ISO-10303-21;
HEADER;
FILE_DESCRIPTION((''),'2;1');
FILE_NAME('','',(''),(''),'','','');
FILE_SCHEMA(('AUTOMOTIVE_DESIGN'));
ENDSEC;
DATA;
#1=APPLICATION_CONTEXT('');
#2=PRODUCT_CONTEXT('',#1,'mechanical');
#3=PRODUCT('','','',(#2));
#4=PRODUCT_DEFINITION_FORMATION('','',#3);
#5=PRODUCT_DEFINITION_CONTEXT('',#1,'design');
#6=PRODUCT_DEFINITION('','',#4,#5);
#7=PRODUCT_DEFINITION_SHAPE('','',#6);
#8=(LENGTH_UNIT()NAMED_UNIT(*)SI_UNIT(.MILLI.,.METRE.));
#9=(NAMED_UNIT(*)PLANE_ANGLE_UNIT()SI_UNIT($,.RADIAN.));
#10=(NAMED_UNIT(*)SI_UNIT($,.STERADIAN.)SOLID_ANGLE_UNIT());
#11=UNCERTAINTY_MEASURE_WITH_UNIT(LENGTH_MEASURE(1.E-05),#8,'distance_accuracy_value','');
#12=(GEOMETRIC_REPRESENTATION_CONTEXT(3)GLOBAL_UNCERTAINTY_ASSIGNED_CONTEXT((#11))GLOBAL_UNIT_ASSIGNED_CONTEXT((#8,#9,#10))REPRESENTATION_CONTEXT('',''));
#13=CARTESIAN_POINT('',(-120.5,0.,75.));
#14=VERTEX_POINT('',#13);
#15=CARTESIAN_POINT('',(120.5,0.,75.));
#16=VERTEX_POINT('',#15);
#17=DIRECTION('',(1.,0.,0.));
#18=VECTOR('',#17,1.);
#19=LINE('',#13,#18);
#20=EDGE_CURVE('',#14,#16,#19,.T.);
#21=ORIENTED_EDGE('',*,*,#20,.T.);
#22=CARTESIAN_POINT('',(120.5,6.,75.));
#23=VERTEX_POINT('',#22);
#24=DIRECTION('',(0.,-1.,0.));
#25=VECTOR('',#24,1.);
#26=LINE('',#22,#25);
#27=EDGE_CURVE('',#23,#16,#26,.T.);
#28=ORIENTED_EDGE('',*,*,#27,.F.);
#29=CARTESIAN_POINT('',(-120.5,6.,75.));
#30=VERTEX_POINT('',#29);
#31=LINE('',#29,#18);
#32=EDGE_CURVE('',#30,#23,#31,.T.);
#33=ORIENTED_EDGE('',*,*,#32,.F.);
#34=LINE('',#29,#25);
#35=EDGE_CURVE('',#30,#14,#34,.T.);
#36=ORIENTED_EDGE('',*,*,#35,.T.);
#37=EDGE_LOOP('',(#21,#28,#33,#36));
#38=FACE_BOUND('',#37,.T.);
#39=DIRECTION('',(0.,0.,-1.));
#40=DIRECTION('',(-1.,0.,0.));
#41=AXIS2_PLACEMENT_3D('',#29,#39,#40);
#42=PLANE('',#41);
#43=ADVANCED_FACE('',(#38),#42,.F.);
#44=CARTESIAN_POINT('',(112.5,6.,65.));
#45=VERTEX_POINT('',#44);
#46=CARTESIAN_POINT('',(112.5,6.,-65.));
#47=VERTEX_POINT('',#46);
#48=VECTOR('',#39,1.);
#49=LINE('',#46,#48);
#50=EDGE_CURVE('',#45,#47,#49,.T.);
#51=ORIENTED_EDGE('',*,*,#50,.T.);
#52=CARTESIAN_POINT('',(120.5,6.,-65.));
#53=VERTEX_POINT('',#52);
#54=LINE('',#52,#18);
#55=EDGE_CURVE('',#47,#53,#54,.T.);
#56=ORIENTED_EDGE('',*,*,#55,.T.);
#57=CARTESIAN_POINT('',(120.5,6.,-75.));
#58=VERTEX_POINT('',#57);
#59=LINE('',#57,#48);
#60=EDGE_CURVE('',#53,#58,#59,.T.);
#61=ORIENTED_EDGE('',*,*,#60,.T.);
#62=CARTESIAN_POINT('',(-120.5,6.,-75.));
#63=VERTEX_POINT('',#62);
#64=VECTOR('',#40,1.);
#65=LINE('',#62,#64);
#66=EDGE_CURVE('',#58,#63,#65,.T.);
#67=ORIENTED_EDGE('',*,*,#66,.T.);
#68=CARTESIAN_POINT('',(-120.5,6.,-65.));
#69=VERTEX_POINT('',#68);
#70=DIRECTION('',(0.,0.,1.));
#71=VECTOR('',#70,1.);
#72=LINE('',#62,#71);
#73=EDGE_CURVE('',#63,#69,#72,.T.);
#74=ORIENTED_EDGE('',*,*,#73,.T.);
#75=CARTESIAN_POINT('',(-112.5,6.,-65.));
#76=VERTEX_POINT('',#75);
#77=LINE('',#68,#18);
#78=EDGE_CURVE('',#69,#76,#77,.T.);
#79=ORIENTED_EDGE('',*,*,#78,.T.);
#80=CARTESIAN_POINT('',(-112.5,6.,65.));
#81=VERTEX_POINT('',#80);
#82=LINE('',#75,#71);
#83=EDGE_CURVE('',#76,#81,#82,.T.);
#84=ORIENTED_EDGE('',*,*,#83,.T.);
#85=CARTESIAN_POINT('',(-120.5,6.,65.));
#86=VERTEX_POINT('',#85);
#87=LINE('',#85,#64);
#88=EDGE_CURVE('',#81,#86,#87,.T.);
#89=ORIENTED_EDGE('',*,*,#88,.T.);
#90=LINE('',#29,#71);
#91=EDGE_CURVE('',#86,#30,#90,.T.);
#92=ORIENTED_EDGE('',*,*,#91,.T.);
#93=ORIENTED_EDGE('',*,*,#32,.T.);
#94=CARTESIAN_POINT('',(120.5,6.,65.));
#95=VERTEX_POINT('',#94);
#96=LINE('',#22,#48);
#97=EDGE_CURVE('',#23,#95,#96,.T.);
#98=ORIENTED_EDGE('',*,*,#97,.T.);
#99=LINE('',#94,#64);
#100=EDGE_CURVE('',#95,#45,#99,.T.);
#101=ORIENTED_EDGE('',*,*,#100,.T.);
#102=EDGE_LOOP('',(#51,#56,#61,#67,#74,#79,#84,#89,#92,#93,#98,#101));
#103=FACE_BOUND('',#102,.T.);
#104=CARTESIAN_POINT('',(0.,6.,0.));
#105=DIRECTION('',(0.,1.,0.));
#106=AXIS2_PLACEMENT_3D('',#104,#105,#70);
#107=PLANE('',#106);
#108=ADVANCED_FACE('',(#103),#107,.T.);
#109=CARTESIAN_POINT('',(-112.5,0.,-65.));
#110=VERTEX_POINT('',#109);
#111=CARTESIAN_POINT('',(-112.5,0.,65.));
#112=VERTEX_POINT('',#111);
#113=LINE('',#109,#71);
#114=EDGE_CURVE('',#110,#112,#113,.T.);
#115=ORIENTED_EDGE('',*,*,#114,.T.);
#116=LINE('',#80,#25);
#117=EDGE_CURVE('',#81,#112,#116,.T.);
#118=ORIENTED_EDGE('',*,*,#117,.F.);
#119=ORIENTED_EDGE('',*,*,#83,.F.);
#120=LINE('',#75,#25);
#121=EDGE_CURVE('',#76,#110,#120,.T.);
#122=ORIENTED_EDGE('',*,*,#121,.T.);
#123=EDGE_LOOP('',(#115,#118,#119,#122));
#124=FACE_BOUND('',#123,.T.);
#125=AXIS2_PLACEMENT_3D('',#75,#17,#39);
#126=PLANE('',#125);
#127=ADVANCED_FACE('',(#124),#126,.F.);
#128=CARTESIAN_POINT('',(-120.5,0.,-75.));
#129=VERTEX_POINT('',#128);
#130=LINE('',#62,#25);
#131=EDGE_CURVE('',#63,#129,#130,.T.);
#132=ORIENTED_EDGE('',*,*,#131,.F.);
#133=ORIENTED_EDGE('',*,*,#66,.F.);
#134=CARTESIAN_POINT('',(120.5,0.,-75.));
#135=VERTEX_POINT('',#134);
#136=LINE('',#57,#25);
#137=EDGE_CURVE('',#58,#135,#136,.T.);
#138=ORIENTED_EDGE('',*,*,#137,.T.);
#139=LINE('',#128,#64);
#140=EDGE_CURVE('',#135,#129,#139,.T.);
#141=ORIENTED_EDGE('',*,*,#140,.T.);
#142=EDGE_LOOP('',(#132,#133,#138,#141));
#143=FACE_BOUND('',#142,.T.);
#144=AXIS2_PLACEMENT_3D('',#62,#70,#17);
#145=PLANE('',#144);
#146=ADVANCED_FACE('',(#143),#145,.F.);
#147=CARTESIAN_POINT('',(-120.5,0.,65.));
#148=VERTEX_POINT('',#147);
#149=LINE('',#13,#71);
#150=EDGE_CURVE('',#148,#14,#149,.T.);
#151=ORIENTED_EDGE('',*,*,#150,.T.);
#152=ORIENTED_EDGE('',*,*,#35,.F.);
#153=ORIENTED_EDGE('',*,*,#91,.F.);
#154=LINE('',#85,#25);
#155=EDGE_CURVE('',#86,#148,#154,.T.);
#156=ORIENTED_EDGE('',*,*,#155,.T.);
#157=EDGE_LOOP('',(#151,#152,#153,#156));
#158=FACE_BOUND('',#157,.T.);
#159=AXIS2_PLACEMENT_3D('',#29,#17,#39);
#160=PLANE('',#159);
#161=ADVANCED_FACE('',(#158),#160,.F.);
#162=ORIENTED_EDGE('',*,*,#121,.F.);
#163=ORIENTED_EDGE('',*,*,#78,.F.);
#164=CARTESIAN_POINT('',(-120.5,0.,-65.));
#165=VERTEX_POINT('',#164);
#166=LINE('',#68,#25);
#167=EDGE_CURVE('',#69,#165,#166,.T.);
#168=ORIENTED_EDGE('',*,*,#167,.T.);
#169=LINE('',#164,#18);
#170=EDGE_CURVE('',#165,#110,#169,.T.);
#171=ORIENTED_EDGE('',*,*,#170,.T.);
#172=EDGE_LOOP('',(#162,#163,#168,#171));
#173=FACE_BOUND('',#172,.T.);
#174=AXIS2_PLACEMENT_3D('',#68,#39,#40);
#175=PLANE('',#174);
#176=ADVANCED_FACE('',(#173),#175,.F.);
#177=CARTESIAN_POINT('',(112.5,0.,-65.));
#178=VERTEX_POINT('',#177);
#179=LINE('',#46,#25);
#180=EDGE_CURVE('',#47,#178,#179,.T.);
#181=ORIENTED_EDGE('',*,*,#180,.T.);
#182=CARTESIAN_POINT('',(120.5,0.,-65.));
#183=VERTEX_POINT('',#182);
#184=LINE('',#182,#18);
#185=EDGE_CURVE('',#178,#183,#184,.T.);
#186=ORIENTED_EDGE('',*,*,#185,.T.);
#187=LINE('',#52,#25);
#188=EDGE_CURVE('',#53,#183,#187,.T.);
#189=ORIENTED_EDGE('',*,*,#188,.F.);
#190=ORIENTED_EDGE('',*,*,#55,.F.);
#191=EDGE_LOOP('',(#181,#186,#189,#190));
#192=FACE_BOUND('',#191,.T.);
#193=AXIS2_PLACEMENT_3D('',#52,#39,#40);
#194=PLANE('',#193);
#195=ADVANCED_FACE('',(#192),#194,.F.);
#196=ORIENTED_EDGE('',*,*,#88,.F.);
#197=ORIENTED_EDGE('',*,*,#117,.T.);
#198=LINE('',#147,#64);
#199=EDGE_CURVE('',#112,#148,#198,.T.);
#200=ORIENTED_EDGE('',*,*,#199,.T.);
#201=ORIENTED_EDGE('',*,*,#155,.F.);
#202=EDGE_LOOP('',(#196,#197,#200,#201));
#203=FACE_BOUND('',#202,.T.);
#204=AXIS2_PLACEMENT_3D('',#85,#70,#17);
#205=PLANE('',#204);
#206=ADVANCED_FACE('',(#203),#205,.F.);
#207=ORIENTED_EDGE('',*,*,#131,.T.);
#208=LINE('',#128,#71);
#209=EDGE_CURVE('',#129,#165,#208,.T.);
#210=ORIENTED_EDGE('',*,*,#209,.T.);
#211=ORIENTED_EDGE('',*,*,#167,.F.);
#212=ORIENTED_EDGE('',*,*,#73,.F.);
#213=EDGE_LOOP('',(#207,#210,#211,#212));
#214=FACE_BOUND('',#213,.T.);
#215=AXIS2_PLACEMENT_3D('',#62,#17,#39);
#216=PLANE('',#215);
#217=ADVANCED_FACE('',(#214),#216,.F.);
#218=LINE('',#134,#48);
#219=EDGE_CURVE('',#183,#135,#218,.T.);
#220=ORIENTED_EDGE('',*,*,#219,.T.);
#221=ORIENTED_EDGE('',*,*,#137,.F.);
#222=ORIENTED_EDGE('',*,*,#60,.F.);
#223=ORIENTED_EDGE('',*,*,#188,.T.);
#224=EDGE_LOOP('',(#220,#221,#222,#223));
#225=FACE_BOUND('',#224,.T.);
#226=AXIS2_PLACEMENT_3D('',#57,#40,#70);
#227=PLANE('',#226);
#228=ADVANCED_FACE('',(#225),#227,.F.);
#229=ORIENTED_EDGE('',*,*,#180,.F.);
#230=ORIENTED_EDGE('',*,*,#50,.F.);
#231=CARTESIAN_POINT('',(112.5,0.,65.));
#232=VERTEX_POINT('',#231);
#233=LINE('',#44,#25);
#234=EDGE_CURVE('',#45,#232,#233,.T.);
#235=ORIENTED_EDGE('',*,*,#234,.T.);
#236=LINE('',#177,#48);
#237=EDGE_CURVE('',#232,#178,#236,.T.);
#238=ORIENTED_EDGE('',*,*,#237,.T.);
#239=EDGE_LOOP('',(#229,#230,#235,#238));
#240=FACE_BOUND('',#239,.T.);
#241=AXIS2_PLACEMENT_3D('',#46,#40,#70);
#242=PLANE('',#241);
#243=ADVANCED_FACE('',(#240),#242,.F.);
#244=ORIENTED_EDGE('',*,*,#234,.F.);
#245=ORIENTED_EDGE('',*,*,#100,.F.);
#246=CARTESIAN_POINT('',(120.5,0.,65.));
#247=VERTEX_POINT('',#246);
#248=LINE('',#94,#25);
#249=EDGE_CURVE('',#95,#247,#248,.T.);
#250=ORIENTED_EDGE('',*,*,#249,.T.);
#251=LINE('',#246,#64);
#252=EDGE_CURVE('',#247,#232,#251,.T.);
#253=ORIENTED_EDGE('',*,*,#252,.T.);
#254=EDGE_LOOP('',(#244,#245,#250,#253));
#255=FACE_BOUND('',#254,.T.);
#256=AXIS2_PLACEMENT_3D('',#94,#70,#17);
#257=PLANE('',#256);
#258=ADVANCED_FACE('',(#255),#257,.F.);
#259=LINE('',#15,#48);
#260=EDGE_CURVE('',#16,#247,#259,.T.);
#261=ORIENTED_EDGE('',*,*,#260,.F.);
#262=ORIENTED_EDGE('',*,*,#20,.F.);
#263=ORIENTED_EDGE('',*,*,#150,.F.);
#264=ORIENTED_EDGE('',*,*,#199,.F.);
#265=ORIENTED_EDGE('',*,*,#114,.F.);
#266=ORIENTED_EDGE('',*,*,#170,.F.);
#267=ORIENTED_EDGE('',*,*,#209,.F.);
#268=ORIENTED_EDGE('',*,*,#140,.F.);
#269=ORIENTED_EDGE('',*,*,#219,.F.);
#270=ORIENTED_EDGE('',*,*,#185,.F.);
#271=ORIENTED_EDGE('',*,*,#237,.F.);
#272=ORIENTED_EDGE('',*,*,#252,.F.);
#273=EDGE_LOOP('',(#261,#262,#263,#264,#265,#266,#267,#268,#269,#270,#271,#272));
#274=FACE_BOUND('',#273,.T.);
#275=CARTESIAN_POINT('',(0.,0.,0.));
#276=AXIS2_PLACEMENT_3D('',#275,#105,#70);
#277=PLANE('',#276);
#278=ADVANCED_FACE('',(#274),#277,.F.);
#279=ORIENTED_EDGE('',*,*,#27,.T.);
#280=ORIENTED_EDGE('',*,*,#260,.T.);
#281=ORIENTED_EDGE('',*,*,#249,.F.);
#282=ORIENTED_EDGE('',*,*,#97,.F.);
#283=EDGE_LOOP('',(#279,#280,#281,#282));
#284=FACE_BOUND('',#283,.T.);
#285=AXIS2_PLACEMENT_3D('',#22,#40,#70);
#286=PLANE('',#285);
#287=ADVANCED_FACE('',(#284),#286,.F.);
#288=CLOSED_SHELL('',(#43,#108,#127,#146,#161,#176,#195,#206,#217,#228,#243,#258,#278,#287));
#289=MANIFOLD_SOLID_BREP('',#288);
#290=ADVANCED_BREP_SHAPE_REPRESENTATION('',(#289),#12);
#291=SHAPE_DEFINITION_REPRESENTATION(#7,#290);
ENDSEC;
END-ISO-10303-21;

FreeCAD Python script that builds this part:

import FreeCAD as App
import Part
import Sketcher
from FreeCAD import Vector


def add_polygon(sketch, points):
    """Adds a closed chain of lines whose ends are joined by coincident constraints."""
    first, n = sketch.GeometryCount, len(points)
    for a, b in zip(points, points[1:] + points[:1]):
        sketch.addGeometry(Part.LineSegment(App.Vector(*a, 0), App.Vector(*b, 0)), False)
    for i in range(n):
        sketch.addConstraint(Sketcher.Constraint("Coincident", first + i, 2, first + (i + 1) % n, 1))

doc = App.newDocument("Part")
params = doc.addObject("Spreadsheet::Sheet", "Params")
for row, (alias, value) in enumerate([
    ("sketch1_width", "241 mm"),
    ("sketch1_width2", "8 mm"),
    ("sketch1_height", "10 mm"),
    ("sketch1_height2", "130 mm"),
    ("pad1_length", "6 mm"),
], start=1):
    params.set(f"A{row}", alias)
    params.set(f"B{row}", "=" + value)
    params.setAlias(f"B{row}", alias)

body = doc.addObject("PartDesign::Body", "Body")

sketch1 = body.newObject("Sketcher::SketchObject", "Sketch")
sketch1.AttachmentSupport = (doc.getObject("XZ_Plane"), [""])
sketch1.MapMode = "FlatFace"
add_polygon(sketch1, [(120, -75), (-120, -75), (-120, -65), (-112, -65), (-112, 65), (-120, 65), (-120, 75), (120, 75), (120, 65), (112, 65), (112, -65), (120, -65)])
sketch1.addConstraint([
    Sketcher.Constraint("Horizontal", 0),
    Sketcher.Constraint("Vertical", 1),
    Sketcher.Constraint("Horizontal", 2),
    Sketcher.Constraint("Vertical", 3),
    Sketcher.Constraint("Horizontal", 4),
    Sketcher.Constraint("Vertical", 5),
    Sketcher.Constraint("Horizontal", 6),
    Sketcher.Constraint("Vertical", 7),
    Sketcher.Constraint("Horizontal", 8),
    Sketcher.Constraint("Vertical", 9),
    Sketcher.Constraint("Horizontal", 10),
    Sketcher.Constraint("Vertical", 11),
    Sketcher.Constraint("Symmetric", 0, 2, 6, 2, -1, 1),
    Sketcher.Constraint("Symmetric", 2, 2, 8, 2, -1, 1),
    Sketcher.Constraint("Symmetric", 4, 2, 10, 2, -1, 1),
    Sketcher.Constraint("Symmetric", 4, 2, 7, 2, -2),
    Sketcher.Constraint("DistanceX", 0, 2, 0, 1, 241.0),
    Sketcher.Constraint("DistanceX", 2, 1, 2, 2, 8.0),
    Sketcher.Constraint("DistanceY", 1, 1, 1, 2, 10.0),
    Sketcher.Constraint("DistanceY", 3, 1, 3, 2, 130.0),
])
sketch1.setExpression("Constraints[28]", "Params.sketch1_width")
sketch1.setExpression("Constraints[29]", "Params.sketch1_width2")
sketch1.setExpression("Constraints[30]", "Params.sketch1_height")
sketch1.setExpression("Constraints[31]", "Params.sketch1_height2")
pad1 = body.newObject("PartDesign::Pad", "Pad")
pad1.Profile = sketch1
pad1.setExpression("Length", "Params.pad1_length")
pad1.Reversed = True

doc.recompute()
